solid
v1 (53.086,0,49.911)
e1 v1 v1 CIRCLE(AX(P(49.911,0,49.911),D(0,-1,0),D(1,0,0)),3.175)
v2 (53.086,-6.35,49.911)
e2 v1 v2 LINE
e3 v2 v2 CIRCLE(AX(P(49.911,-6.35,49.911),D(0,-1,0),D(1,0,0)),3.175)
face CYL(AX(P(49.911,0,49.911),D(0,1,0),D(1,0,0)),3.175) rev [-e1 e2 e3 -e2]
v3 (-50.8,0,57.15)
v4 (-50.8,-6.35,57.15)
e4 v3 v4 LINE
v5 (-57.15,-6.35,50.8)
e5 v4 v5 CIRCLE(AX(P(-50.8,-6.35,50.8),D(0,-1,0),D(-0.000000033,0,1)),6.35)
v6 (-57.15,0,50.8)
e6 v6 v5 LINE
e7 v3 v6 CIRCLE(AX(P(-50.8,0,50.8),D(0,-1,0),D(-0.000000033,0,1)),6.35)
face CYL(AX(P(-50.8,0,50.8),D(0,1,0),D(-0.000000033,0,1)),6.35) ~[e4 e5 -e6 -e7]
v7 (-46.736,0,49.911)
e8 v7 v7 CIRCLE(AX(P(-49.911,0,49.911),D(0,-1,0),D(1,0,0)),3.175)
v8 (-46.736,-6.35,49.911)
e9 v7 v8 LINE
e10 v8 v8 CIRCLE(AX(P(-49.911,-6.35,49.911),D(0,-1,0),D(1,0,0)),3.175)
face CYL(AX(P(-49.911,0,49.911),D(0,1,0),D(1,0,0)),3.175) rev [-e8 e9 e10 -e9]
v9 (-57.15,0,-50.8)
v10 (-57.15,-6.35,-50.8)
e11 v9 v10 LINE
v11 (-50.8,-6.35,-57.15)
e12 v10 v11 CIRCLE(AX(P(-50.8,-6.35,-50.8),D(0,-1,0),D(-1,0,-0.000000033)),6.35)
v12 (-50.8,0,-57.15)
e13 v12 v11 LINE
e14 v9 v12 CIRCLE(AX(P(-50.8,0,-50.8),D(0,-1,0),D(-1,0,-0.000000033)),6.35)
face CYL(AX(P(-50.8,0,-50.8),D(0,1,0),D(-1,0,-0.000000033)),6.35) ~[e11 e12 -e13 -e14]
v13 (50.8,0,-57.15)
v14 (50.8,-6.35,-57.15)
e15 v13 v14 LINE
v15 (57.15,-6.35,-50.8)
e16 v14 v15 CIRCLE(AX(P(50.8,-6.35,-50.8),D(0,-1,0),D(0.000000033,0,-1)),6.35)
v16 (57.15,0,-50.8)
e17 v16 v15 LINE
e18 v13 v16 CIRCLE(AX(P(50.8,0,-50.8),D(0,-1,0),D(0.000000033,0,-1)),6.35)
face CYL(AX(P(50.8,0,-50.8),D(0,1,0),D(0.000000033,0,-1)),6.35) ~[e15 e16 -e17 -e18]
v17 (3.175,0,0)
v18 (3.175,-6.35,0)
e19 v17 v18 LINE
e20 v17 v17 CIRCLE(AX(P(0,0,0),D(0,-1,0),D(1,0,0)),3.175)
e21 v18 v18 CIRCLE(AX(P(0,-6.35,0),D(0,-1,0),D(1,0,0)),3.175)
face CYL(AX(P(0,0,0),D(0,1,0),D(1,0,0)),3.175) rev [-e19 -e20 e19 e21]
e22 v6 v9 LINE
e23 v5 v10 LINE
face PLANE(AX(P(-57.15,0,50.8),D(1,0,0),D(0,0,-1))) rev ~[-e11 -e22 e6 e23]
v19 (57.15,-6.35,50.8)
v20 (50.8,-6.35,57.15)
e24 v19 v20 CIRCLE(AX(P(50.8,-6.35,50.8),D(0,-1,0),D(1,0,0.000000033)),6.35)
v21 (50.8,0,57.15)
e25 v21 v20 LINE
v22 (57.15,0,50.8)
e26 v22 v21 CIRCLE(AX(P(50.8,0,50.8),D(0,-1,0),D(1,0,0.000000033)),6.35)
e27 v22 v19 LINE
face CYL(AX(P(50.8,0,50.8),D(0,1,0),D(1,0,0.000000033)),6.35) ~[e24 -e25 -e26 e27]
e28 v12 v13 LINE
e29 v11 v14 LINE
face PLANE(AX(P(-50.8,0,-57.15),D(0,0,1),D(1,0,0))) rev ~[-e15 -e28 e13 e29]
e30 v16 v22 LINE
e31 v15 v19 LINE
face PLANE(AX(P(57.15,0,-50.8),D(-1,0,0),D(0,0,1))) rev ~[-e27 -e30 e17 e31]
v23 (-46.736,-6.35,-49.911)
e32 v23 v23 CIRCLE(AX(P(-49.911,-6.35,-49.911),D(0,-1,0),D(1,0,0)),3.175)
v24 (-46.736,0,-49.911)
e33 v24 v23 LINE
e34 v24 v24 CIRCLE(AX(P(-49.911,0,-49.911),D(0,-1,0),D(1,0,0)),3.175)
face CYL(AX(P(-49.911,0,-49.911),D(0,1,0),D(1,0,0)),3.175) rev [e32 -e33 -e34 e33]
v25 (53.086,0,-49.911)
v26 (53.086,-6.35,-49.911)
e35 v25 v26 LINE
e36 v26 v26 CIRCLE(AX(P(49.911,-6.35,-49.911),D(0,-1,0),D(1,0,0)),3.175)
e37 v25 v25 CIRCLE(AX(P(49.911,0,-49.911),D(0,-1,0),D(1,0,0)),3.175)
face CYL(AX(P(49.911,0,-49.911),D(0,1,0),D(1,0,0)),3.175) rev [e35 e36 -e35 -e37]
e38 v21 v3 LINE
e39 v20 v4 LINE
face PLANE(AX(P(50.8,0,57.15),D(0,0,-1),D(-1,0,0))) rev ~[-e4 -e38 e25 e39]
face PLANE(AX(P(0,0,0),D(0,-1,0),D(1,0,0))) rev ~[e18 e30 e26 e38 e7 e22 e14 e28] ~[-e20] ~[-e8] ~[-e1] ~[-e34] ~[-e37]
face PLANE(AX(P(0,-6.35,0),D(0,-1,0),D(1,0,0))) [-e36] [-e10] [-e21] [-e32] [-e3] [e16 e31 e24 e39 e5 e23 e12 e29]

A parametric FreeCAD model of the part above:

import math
import FreeCAD as App
import Part
import Sketcher
Q = App.Units.Quantity

doc = App.newDocument("Part")
body = doc.addObject("PartDesign::Body", "Body")

# Sketch on XZ plane
sketch1 = body.newObject("Sketcher::SketchObject", "Sketch")
sketch1.AttachmentSupport = (doc.getObject("XZ_Plane"), [""])
sketch1.MapMode = "FlatFace"
sketch1.addGeometry([
    Part.LineSegment(App.Vector(50.8, 57.1, 0), App.Vector(-50.8, 57.1, 0)),  # 0
    Part.ArcOfCircle(Part.Circle(App.Vector(-50.8, 50.8, 0), App.Vector(0, 0, 1), 6.4), math.radians(90), math.radians(180)),  # 1
    Part.LineSegment(App.Vector(-57.1, 50.8, 0), App.Vector(-57.1, -50.8, 0)),  # 2
    Part.ArcOfCircle(Part.Circle(App.Vector(-50.8, -50.8, 0), App.Vector(0, 0, 1), 6.4), math.radians(-180), math.radians(-90)),  # 3
    Part.LineSegment(App.Vector(-50.8, -57.1, 0), App.Vector(50.8, -57.1, 0)),  # 4
    Part.ArcOfCircle(Part.Circle(App.Vector(50.8, -50.8, 0), App.Vector(0, 0, 1), 6.4), math.radians(-90), math.radians(0)),  # 5
    Part.LineSegment(App.Vector(57.1, -50.8, 0), App.Vector(57.1, 50.8, 0)),  # 6
    Part.ArcOfCircle(Part.Circle(App.Vector(50.8, 50.8, 0), App.Vector(0, 0, 1), 6.4), math.radians(0), math.radians(90)),  # 7
    Part.Circle(App.Vector(-49.9, -49.9, 0), App.Vector(0, 0, 1), 3.2),  # 8
    Part.Circle(App.Vector(0, 0, 0), App.Vector(0, 0, 1), 3.2),  # 9
    Part.Circle(App.Vector(49.9, -49.9, 0), App.Vector(0, 0, 1), 3.2),  # 10
    Part.Circle(App.Vector(-49.9, 49.9, 0), App.Vector(0, 0, 1), 3.2),  # 11
    Part.Circle(App.Vector(49.9, 49.9, 0), App.Vector(0, 0, 1), 3.2),  # 12
], False)
sketch1.addConstraint([
    Sketcher.Constraint("Tangent", 0, 2, 1, 1),
    Sketcher.Constraint("Tangent", 1, 2, 2, 1),
    Sketcher.Constraint("Tangent", 2, 2, 3, 1),
    Sketcher.Constraint("Tangent", 3, 2, 4, 1),
    Sketcher.Constraint("Tangent", 4, 2, 5, 1),
    Sketcher.Constraint("Tangent", 5, 2, 6, 1),
    Sketcher.Constraint("Tangent", 6, 2, 7, 1),
    Sketcher.Constraint("Tangent", 7, 2, 0, 1),
    Sketcher.Constraint("Horizontal", 0),
    Sketcher.Constraint("Vertical", 2),
    Sketcher.Constraint("Horizontal", 4),
    Sketcher.Constraint("Vertical", 6),
    Sketcher.Constraint("Coincident", 9, 3, -1, 1),
    Sketcher.Constraint("Equal", 1, 3),
    Sketcher.Constraint("Equal", 3, 5),
    Sketcher.Constraint("Equal", 5, 7),
    Sketcher.Constraint("Equal", 8, 9),
    Sketcher.Constraint("Equal", 9, 10),
    Sketcher.Constraint("Equal", 10, 11),
    Sketcher.Constraint("Equal", 11, 12),
    Sketcher.Constraint("Symmetric", 1, 3, 5, 3, -1, 1),
    Sketcher.Constraint("Symmetric", 10, 3, 11, 3, -1, 1),
    Sketcher.Constraint("Symmetric", 8, 3, 12, 3, -1, 1),
    Sketcher.Constraint("Symmetric", 8, 3, 10, 3, -2),
    Sketcher.Constraint("Equal", 4, 2),
    Sketcher.Constraint("Diameter", 8, Q("0.25 in")),
    Sketcher.Constraint("DistanceX", 0, 2, 0, 1, Q("4 in")),
    Sketcher.Constraint("Radius", 1, Q("0.25 in")),
    Sketcher.Constraint("DistanceX", 8, 3, 10, 3, Q("3.93 in")),
    Sketcher.Constraint("DistanceY", 8, 3, 11, 3, Q("3.93 in")),
])
pad1 = body.newObject("PartDesign::Pad", "Pad")
pad1.Profile = sketch1
pad1.Length = Q("0.25 in")

doc.recompute()
